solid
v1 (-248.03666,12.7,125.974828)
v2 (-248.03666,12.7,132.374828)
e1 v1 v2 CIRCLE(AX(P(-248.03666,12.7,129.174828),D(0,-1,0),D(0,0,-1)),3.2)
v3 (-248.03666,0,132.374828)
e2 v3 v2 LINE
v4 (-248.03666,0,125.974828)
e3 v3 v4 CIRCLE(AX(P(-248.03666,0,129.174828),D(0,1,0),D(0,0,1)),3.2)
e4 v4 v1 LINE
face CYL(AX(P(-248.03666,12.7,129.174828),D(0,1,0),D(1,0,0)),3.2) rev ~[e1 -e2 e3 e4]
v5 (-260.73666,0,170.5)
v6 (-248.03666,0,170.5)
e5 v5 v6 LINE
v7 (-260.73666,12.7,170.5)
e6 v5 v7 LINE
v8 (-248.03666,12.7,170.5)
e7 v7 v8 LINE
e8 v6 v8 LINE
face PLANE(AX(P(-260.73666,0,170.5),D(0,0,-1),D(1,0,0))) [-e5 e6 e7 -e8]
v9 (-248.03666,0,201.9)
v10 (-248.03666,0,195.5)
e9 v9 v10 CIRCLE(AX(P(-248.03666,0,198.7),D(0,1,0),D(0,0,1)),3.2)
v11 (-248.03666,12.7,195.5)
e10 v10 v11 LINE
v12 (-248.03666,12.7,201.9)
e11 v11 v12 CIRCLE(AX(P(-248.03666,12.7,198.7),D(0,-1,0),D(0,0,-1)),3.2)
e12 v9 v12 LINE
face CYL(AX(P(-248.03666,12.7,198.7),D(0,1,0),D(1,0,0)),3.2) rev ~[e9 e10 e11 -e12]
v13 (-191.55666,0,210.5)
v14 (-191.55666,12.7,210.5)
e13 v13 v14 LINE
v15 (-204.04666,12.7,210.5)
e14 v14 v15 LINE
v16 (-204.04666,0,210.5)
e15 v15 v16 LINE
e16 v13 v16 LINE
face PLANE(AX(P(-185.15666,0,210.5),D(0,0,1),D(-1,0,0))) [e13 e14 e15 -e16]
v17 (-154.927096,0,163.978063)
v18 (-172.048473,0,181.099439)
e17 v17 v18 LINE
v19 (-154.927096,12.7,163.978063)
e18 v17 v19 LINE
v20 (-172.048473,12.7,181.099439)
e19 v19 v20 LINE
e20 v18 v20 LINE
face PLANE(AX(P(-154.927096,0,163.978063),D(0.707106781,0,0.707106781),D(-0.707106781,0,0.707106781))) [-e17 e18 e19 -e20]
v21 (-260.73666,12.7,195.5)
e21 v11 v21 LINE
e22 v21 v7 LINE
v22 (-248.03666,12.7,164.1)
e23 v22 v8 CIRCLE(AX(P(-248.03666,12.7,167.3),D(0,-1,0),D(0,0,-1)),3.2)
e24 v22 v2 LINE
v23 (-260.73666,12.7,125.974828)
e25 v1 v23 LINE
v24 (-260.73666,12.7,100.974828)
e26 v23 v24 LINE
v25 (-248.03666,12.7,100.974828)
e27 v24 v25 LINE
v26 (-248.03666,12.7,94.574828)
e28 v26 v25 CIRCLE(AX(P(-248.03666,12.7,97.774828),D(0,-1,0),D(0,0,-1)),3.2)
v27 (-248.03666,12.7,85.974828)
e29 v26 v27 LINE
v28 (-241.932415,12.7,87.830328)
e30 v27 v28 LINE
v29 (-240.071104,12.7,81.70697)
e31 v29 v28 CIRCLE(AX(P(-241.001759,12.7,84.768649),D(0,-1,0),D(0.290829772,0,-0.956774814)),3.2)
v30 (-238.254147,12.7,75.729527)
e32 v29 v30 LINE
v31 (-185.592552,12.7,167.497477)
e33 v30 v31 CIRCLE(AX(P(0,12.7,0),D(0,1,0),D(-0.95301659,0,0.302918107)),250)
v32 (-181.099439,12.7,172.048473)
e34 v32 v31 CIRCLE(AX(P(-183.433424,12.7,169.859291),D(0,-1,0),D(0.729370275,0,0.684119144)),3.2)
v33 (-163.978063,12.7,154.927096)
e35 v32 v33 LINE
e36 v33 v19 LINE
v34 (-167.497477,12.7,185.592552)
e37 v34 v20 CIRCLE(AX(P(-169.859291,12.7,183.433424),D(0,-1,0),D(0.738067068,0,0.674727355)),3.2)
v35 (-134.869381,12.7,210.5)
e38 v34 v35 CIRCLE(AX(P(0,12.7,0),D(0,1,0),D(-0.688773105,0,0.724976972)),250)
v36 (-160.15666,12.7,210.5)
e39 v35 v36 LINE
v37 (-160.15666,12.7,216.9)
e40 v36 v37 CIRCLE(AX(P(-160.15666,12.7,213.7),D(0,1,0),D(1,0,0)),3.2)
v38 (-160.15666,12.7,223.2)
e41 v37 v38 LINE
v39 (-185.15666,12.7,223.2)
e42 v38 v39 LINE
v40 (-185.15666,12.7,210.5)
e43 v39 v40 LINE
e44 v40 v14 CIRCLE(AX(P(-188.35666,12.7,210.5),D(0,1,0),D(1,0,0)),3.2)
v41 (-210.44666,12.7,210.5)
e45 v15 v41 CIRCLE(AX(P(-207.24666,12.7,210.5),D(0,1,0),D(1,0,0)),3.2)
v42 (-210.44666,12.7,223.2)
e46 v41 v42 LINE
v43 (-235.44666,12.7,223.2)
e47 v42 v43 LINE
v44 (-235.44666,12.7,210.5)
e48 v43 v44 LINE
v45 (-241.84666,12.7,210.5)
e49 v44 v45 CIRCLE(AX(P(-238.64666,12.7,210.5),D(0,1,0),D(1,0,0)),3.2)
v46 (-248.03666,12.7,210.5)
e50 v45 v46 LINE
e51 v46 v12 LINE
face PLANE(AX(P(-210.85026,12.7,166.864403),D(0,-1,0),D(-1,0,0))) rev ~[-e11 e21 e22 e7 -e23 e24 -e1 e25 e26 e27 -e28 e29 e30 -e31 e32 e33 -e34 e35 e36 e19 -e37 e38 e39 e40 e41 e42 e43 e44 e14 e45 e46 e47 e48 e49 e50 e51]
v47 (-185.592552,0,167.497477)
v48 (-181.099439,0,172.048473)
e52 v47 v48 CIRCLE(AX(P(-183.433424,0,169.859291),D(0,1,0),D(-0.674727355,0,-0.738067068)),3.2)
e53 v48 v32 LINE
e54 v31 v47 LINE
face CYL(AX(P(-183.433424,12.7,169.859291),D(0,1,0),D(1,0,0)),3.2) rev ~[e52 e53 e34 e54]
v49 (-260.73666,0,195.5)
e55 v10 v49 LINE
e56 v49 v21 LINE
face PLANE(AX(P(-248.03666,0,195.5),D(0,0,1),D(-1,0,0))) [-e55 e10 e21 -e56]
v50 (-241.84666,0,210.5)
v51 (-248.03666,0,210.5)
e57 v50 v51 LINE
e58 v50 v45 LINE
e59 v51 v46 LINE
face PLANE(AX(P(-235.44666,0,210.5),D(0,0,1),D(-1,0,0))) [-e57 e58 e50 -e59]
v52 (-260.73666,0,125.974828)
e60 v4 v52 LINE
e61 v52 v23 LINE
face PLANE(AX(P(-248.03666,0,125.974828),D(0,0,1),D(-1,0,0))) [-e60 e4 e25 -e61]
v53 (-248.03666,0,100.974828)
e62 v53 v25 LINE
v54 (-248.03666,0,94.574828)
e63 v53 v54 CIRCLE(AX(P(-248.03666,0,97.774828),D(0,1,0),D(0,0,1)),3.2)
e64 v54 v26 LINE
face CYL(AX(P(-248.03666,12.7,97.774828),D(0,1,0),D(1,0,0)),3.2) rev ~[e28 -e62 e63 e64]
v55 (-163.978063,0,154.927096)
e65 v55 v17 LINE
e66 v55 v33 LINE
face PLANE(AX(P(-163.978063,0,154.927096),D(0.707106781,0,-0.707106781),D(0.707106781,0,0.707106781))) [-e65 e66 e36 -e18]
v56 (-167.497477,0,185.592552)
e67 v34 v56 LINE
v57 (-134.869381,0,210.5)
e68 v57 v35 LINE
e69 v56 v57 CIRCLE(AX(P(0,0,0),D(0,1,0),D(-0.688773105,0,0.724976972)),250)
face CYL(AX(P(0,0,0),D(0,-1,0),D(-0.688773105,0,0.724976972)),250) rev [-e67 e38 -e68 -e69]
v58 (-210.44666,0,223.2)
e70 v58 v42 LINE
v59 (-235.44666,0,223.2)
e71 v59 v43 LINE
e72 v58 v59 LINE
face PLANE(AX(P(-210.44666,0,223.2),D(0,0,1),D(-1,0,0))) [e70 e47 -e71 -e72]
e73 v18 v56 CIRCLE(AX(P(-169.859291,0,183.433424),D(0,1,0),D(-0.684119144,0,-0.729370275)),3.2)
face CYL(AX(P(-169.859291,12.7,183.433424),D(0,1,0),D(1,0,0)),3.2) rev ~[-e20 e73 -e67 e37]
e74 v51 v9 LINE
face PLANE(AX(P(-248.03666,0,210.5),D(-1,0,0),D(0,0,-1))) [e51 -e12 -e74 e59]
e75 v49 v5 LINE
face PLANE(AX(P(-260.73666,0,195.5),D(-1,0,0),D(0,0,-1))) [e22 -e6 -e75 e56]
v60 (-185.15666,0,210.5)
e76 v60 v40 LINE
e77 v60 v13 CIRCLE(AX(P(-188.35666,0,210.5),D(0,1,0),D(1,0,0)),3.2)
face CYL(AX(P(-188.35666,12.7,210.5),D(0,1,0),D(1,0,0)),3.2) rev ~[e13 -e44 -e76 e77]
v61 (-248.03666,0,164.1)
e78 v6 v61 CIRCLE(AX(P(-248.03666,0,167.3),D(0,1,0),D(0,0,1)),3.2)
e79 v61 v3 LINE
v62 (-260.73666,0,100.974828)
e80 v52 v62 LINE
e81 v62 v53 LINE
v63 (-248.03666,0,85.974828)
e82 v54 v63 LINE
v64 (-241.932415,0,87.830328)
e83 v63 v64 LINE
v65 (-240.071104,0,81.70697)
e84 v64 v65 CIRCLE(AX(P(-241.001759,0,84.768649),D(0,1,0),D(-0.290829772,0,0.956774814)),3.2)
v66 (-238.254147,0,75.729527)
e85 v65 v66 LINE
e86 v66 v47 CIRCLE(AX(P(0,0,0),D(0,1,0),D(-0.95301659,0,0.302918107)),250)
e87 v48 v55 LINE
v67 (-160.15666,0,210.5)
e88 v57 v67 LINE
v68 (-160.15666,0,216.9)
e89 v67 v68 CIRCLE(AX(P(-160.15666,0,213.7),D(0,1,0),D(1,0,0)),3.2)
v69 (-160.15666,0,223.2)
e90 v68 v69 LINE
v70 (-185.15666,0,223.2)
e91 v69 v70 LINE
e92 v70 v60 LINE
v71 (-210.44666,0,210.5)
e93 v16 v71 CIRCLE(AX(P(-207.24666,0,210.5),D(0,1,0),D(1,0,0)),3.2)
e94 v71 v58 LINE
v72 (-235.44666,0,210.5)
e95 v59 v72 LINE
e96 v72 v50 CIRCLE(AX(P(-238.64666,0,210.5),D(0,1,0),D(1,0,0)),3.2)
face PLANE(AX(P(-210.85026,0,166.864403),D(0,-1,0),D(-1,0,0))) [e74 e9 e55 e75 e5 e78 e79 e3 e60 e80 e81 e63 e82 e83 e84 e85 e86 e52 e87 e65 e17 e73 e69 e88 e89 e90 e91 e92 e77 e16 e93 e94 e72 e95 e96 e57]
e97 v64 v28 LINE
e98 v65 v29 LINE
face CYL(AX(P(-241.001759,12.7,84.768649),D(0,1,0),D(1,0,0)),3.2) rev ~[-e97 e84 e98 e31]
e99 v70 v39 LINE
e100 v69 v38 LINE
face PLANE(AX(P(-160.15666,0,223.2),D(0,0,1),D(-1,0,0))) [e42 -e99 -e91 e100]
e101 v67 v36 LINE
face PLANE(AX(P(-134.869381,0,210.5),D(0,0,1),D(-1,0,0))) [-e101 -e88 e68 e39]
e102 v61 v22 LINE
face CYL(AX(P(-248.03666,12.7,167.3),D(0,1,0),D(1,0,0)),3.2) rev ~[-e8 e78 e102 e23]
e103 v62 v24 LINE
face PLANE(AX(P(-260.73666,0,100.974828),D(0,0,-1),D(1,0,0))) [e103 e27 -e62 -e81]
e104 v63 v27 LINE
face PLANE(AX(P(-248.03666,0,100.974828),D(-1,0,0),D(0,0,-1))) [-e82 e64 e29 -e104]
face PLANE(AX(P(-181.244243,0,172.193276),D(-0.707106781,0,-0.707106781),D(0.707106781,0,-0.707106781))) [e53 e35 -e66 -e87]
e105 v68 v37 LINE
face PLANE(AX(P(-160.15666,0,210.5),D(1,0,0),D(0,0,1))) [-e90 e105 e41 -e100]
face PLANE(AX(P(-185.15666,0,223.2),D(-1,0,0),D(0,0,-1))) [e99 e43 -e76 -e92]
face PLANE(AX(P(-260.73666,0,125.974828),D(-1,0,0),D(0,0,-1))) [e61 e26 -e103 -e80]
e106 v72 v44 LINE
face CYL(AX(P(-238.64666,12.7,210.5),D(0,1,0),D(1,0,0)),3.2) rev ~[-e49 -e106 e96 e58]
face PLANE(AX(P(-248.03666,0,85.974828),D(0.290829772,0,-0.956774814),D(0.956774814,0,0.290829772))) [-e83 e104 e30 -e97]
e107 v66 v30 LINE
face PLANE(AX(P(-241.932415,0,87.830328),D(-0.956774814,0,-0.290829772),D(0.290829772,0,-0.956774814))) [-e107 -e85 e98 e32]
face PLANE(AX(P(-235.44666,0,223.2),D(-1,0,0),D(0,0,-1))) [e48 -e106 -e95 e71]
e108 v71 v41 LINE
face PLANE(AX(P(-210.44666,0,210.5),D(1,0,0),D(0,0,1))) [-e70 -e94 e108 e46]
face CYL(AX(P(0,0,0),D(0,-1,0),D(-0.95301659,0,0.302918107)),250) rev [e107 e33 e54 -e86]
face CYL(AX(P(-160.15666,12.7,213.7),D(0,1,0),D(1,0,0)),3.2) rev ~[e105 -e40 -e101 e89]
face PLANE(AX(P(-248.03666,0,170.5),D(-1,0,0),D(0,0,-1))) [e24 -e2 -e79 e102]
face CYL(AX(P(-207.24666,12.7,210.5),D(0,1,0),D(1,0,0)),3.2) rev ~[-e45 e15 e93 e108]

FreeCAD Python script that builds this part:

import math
import FreeCAD as App
import Part
import Sketcher

V = App.Vector
Q = App.Units.Quantity

doc = App.newDocument("Part")
body = doc.addObject("PartDesign::Body", "Body")

# Sketch on XZ plane
sketch1 = body.newObject("Sketcher::SketchObject", "Sketch")
sketch1.AttachmentSupport = (doc.getObject("XZ_Plane"), [""])
sketch1.MapMode = "FlatFace"
sketch1.addGeometry(Part.LineSegment(V(-160, 210, 0), V(-135, 210, 0)), False)
sketch1.addGeometry(Part.ArcOfCircle(Part.Circle(V(0, 0, 0), V(0, 0, 1), 250), math.radians(122.65), math.radians(133.53)), False)
sketch1.addGeometry(Part.LineSegment(V(-172, 181, 0), V(-155, 164, 0)), False)
sketch1.addGeometry(Part.LineSegment(V(-155, 164, 0), V(-164, 155, 0)), False)
sketch1.addGeometry(Part.LineSegment(V(-164, 155, 0), V(-181, 172, 0)), False)
sketch1.addGeometry(Part.ArcOfCircle(Part.Circle(V(0, 0, 0), V(0, 0, 1), 250), math.radians(136), math.radians(162)), False)
sketch1.addGeometry(Part.LineSegment(V(-238, 76, 0), V(-242, 88, 0)), False)
sketch1.addGeometry(Part.LineSegment(V(-242, 88, 0), V(-248, 86, 0)), False)
sketch1.addGeometry(Part.LineSegment(V(-248, 86, 0), V(-248, 101, 0)), False)
sketch1.addGeometry(Part.LineSegment(V(-248, 101, 0), V(-261, 101, 0)), False)
sketch1.addGeometry(Part.LineSegment(V(-261, 101, 0), V(-261, 126, 0)), False)
sketch1.addGeometry(Part.LineSegment(V(-261, 126, 0), V(-248, 126, 0)), False)
sketch1.addGeometry(Part.LineSegment(V(-248, 126, 0), V(-248, 170, 0)), False)
sketch1.addGeometry(Part.LineSegment(V(-248, 170, 0), V(-261, 170, 0)), False)
sketch1.addGeometry(Part.LineSegment(V(-261, 170, 0), V(-261, 196, 0)), False)
sketch1.addGeometry(Part.LineSegment(V(-261, 196, 0), V(-248, 196, 0)), False)
sketch1.addGeometry(Part.LineSegment(V(-248, 196, 0), V(-248, 210, 0)), False)
sketch1.addGeometry(Part.LineSegment(V(-248, 210, 0), V(-235, 210, 0)), False)
sketch1.addGeometry(Part.LineSegment(V(-235, 210, 0), V(-235, 223, 0)), False)
sketch1.addGeometry(Part.LineSegment(V(-235, 223, 0), V(-210, 223, 0)), False)
sketch1.addGeometry(Part.LineSegment(V(-210, 223, 0), V(-210, 210, 0)), False)
sketch1.addGeometry(Part.LineSegment(V(-210, 210, 0), V(-185, 210, 0)), False)
sketch1.addGeometry(Part.LineSegment(V(-185, 210, 0), V(-185, 223, 0)), False)
sketch1.addGeometry(Part.LineSegment(V(-185, 223, 0), V(-160, 223, 0)), False)
sketch1.addGeometry(Part.LineSegment(V(-160, 223, 0), V(-160, 210, 0)), False)
sketch1.addConstraint(Sketcher.Constraint("Coincident", 0, 2, 1, 1))
sketch1.addConstraint(Sketcher.Constraint("Coincident", 1, 2, 2, 1))
sketch1.addConstraint(Sketcher.Constraint("Coincident", 2, 2, 3, 1))
sketch1.addConstraint(Sketcher.Constraint("Coincident", 3, 2, 4, 1))
sketch1.addConstraint(Sketcher.Constraint("Coincident", 4, 2, 5, 1))
sketch1.addConstraint(Sketcher.Constraint("Coincident", 5, 2, 6, 1))
sketch1.addConstraint(Sketcher.Constraint("Coincident", 6, 2, 7, 1))
sketch1.addConstraint(Sketcher.Constraint("Coincident", 7, 2, 8, 1))
sketch1.addConstraint(Sketcher.Constraint("Coincident", 8, 2, 9, 1))
sketch1.addConstraint(Sketcher.Constraint("Coincident", 9, 2, 10, 1))
sketch1.addConstraint(Sketcher.Constraint("Coincident", 10, 2, 11, 1))
sketch1.addConstraint(Sketcher.Constraint("Coincident", 11, 2, 12, 1))
sketch1.addConstraint(Sketcher.Constraint("Coincident", 12, 2, 13, 1))
sketch1.addConstraint(Sketcher.Constraint("Coincident", 13, 2, 14, 1))
sketch1.addConstraint(Sketcher.Constraint("Coincident", 14, 2, 15, 1))
sketch1.addConstraint(Sketcher.Constraint("Coincident", 15, 2, 16, 1))
sketch1.addConstraint(Sketcher.Constraint("Coincident", 16, 2, 17, 1))
sketch1.addConstraint(Sketcher.Constraint("Coincident", 17, 2, 18, 1))
sketch1.addConstraint(Sketcher.Constraint("Coincident", 18, 2, 19, 1))
sketch1.addConstraint(Sketcher.Constraint("Coincident", 19, 2, 20, 1))
sketch1.addConstraint(Sketcher.Constraint("Coincident", 20, 2, 21, 1))
sketch1.addConstraint(Sketcher.Constraint("Coincident", 21, 2, 22, 1))
sketch1.addConstraint(Sketcher.Constraint("Coincident", 22, 2, 23, 1))
sketch1.addConstraint(Sketcher.Constraint("Coincident", 23, 2, 24, 1))
sketch1.addConstraint(Sketcher.Constraint("Coincident", 24, 2, 0, 1))
sketch1.addConstraint(Sketcher.Constraint("Horizontal", 0))
sketch1.addConstraint(Sketcher.Constraint("Vertical", 8))
sketch1.addConstraint(Sketcher.Constraint("Horizontal", 9))
sketch1.addConstraint(Sketcher.Constraint("Vertical", 10))
sketch1.addConstraint(Sketcher.Constraint("Horizontal", 11))
sketch1.addConstraint(Sketcher.Constraint("Vertical", 12))
sketch1.addConstraint(Sketcher.Constraint("Horizontal", 13))
sketch1.addConstraint(Sketcher.Constraint("Vertical", 14))
sketch1.addConstraint(Sketcher.Constraint("Horizontal", 15))
sketch1.addConstraint(Sketcher.Constraint("Vertical", 16))
sketch1.addConstraint(Sketcher.Constraint("Horizontal", 17))
sketch1.addConstraint(Sketcher.Constraint("Vertical", 18))
sketch1.addConstraint(Sketcher.Constraint("Horizontal", 19))
sketch1.addConstraint(Sketcher.Constraint("Vertical", 20))
sketch1.addConstraint(Sketcher.Constraint("Horizontal", 21))
sketch1.addConstraint(Sketcher.Constraint("Vertical", 22))
sketch1.addConstraint(Sketcher.Constraint("Horizontal", 23))
sketch1.addConstraint(Sketcher.Constraint("Vertical", 24))
sketch1.addConstraint(Sketcher.Constraint("Coincident", 1, 3, -1, 1))
sketch1.addConstraint(Sketcher.Constraint("Coincident", 5, 3, -1, 1))
sketch1.addConstraint(Sketcher.Constraint("Equal", 1, 5))
sketch1.addConstraint(Sketcher.Constraint("Perpendicular", 2, 3))
sketch1.addConstraint(Sketcher.Constraint("Perpendicular", 3, 4))
sketch1.addConstraint(Sketcher.Constraint("Perpendicular", 6, 7))
sketch1.addConstraint(Sketcher.Constraint("Horizontal", 0, 2, 16, 2))
sketch1.addConstraint(Sketcher.Constraint("Horizontal", 17, 2, 20, 2))
sketch1.addConstraint(Sketcher.Constraint("Horizontal", 19, 2, 22, 2))
sketch1.addConstraint(Sketcher.Constraint("Vertical", 8, 2, 11, 2))
sketch1.addConstraint(Sketcher.Constraint("Vertical", 10, 2, 13, 2))
sketch1.addConstraint(Sketcher.Constraint("Vertical", 12, 2, 15, 2))
sketch1.addConstraint(Sketcher.Constraint("Equal", 19, 23))
sketch1.addConstraint(Sketcher.Constraint("Equal", 23, 10))
sketch1.addConstraint(Sketcher.Constraint("Equal", 10, 14))
sketch1.addConstraint(Sketcher.Constraint("Equal", 8, 16))
sketch1.addConstraint(Sketcher.Constraint("Equal", 15, 18))
sketch1.addConstraint(Sketcher.Constraint("Equal", 2, 4))
sketch1.addConstraint(Sketcher.Constraint("Radius", 1, 250.0))
sketch1.addConstraint(Sketcher.Constraint("DistanceX", 19, 1, 19, 2, 25.0))
sketch1.addConstraint(Sketcher.Constraint("DistanceY", 8, 1, 8, 2, 15.0))
sketch1.addConstraint(Sketcher.Constraint("Angle", 2, Q("-45 deg")))
sketch1.addConstraint(Sketcher.Constraint("DistanceX", 9, 2, 9, 1, 12.7))
sketch1.addConstraint(Sketcher.Constraint("Distance", 3, 12.8))
sketch1.addConstraint(Sketcher.Constraint("DistanceX", 17, 1, 17, 2, 12.59))
sketch1.addConstraint(Sketcher.Constraint("DistanceX", 21, 1, 21, 2, 25.29))
sketch1.addConstraint(Sketcher.Constraint("DistanceY", -1, 1, 0, 2, 210.5))
sketch1.addConstraint(Sketcher.Constraint("DistanceX", 0, 1, 0, 2, 25.287279))
sketch1.addConstraint(Sketcher.Constraint("DistanceY", 5, 2, 6, 2, 12.100802))
sketch1.addConstraint(Sketcher.Constraint("DistanceY", 7, 2, 6, 2, 1.855501))
sketch1.addConstraint(Sketcher.Constraint("Distance", 6, 12.647492))
sketch1.addConstraint(Sketcher.Constraint("DistanceY", 2, 2, 1, 2, 17.26618))
pad1 = body.newObject("PartDesign::Pad", "Pad")
pad1.Profile = sketch1
pad1.Length = 12.7
pad1.Reversed = True

# Sketch on XZ plane
sketch2 = body.newObject("Sketcher::SketchObject", "Sketch001")
sketch2.AttachmentSupport = (doc.getObject("XZ_Plane"), [""])
sketch2.MapMode = "FlatFace"
sketch2.AttachmentOffset = App.Placement(V(0, 0, -12.7), App.Rotation())
sketch2.addGeometry(Part.Circle(V(-248, 129.2, 0), V(0, 0, 1), 3.2), False)
sketch2.addGeometry(Part.Circle(V(-248, 97.8, 0), V(0, 0, 1), 3.2), False)
sketch2.addGeometry(Part.Circle(V(-248, 167.3, 0), V(0, 0, 1), 3.2), False)
sketch2.addGeometry(Part.Circle(V(-248, 198.7, 0), V(0, 0, 1), 3.2), False)
sketch2.addGeometry(Part.Circle(V(-238.6, 210.5, 0), V(0, 0, 1), 3.2), False)
sketch2.addGeometry(Part.Circle(V(-207.2, 210.5, 0), V(0, 0, 1), 3.2), False)
sketch2.addGeometry(Part.Circle(V(-188.4, 210.5, 0), V(0, 0, 1), 3.2), False)
sketch2.addGeometry(Part.Circle(V(-160.2, 213.7, 0), V(0, 0, 1), 3.2), False)
sketch2.addGeometry(Part.Circle(V(-183.4, 169.9, 0), V(0, 0, 1), 3.2), False)
sketch2.addGeometry(Part.Circle(V(-169.9, 183.4, 0), V(0, 0, 1), 3.2), False)
sketch2.addGeometry(Part.Circle(V(-241, 84.8, 0), V(0, 0, 1), 3.2), False)
sketch2.addConstraint(Sketcher.Constraint("Equal", 0, 1))
sketch2.addConstraint(Sketcher.Constraint("Equal", 1, 2))
sketch2.addConstraint(Sketcher.Constraint("Equal", 2, 3))
sketch2.addConstraint(Sketcher.Constraint("Equal", 3, 4))
sketch2.addConstraint(Sketcher.Constraint("Equal", 4, 5))
sketch2.addConstraint(Sketcher.Constraint("Equal", 5, 6))
sketch2.addConstraint(Sketcher.Constraint("Equal", 6, 7))
sketch2.addConstraint(Sketcher.Constraint("Equal", 7, 8))
sketch2.addConstraint(Sketcher.Constraint("Equal", 8, 9))
sketch2.addConstraint(Sketcher.Constraint("Equal", 9, 10))
sketch2.addConstraint(Sketcher.Constraint("Horizontal", 4, 3, 5, 3))
sketch2.addConstraint(Sketcher.Constraint("Horizontal", 5, 3, 6, 3))
sketch2.addConstraint(Sketcher.Constraint("Vertical", 0, 3, 1, 3))
sketch2.addConstraint(Sketcher.Constraint("Vertical", 1, 3, 2, 3))
sketch2.addConstraint(Sketcher.Constraint("Vertical", 2, 3, 3, 3))
sketch2.addConstraint(Sketcher.Constraint("Diameter", 0, 6.4))
sketch2.addConstraint(Sketcher.Constraint("DistanceY", 3, 3, 7, 3, 15.0))
sketch2.addConstraint(Sketcher.Constraint("DistanceY", -1, 1, 2, 3, 167.3))
sketch2.addConstraint(Sketcher.Constraint("DistanceY", -1, 1, 3, 3, 198.7))
sketch2.addConstraint(Sketcher.Constraint("DistanceY", -1, 1, 4, 3, 210.5))
sketch2.addConstraint(Sketcher.Constraint("DistanceY", 1, 3, 0, 3, 31.4))
sketch2.addConstraint(Sketcher.Constraint("DistanceX", 4, 3, 5, 3, 31.4))
sketch2.addConstraint(Sketcher.Constraint("DistanceX", 6, 3, 7, 3, 28.2))
sketch2.addConstraint(Sketcher.Constraint("DistanceX", 3, 3, 4, 3, 9.39))
sketch2.addConstraint(Sketcher.Constraint("DistanceX", 5, 3, 6, 3, 18.89))
sketch2.addConstraint(Sketcher.Constraint("DistanceX", 1, 3, 10, 3, 7.034901))
sketch2.addConstraint(Sketcher.Constraint("DistanceX", 0, 3, -1, 1, 248.03666))
sketch2.addConstraint(Sketcher.Constraint("DistanceY", -1, 1, 8, 3, 169.859291))
sketch2.addConstraint(Sketcher.Constraint("DistanceX", 9, 3, -1, 1, 169.859291))
sketch2.addConstraint(Sketcher.Constraint("DistanceY", -1, 1, 10, 3, 84.768649))
sketch2.addConstraint(Sketcher.Constraint("DistanceY", 10, 3, 1, 3, 13.006179))
sketch2.addConstraint(Sketcher.Constraint("DistanceX", 8, 3, -1, 1, 183.433424))
sketch2.addConstraint(Sketcher.Constraint("DistanceY", -1, 1, 9, 3, 183.433424))
pocket1 = body.newObject("PartDesign::Pocket", "Pocket")
pocket1.Profile = sketch2
pocket1.Type = "ThroughAll"
pocket1.Reversed = True

doc.recompute()
